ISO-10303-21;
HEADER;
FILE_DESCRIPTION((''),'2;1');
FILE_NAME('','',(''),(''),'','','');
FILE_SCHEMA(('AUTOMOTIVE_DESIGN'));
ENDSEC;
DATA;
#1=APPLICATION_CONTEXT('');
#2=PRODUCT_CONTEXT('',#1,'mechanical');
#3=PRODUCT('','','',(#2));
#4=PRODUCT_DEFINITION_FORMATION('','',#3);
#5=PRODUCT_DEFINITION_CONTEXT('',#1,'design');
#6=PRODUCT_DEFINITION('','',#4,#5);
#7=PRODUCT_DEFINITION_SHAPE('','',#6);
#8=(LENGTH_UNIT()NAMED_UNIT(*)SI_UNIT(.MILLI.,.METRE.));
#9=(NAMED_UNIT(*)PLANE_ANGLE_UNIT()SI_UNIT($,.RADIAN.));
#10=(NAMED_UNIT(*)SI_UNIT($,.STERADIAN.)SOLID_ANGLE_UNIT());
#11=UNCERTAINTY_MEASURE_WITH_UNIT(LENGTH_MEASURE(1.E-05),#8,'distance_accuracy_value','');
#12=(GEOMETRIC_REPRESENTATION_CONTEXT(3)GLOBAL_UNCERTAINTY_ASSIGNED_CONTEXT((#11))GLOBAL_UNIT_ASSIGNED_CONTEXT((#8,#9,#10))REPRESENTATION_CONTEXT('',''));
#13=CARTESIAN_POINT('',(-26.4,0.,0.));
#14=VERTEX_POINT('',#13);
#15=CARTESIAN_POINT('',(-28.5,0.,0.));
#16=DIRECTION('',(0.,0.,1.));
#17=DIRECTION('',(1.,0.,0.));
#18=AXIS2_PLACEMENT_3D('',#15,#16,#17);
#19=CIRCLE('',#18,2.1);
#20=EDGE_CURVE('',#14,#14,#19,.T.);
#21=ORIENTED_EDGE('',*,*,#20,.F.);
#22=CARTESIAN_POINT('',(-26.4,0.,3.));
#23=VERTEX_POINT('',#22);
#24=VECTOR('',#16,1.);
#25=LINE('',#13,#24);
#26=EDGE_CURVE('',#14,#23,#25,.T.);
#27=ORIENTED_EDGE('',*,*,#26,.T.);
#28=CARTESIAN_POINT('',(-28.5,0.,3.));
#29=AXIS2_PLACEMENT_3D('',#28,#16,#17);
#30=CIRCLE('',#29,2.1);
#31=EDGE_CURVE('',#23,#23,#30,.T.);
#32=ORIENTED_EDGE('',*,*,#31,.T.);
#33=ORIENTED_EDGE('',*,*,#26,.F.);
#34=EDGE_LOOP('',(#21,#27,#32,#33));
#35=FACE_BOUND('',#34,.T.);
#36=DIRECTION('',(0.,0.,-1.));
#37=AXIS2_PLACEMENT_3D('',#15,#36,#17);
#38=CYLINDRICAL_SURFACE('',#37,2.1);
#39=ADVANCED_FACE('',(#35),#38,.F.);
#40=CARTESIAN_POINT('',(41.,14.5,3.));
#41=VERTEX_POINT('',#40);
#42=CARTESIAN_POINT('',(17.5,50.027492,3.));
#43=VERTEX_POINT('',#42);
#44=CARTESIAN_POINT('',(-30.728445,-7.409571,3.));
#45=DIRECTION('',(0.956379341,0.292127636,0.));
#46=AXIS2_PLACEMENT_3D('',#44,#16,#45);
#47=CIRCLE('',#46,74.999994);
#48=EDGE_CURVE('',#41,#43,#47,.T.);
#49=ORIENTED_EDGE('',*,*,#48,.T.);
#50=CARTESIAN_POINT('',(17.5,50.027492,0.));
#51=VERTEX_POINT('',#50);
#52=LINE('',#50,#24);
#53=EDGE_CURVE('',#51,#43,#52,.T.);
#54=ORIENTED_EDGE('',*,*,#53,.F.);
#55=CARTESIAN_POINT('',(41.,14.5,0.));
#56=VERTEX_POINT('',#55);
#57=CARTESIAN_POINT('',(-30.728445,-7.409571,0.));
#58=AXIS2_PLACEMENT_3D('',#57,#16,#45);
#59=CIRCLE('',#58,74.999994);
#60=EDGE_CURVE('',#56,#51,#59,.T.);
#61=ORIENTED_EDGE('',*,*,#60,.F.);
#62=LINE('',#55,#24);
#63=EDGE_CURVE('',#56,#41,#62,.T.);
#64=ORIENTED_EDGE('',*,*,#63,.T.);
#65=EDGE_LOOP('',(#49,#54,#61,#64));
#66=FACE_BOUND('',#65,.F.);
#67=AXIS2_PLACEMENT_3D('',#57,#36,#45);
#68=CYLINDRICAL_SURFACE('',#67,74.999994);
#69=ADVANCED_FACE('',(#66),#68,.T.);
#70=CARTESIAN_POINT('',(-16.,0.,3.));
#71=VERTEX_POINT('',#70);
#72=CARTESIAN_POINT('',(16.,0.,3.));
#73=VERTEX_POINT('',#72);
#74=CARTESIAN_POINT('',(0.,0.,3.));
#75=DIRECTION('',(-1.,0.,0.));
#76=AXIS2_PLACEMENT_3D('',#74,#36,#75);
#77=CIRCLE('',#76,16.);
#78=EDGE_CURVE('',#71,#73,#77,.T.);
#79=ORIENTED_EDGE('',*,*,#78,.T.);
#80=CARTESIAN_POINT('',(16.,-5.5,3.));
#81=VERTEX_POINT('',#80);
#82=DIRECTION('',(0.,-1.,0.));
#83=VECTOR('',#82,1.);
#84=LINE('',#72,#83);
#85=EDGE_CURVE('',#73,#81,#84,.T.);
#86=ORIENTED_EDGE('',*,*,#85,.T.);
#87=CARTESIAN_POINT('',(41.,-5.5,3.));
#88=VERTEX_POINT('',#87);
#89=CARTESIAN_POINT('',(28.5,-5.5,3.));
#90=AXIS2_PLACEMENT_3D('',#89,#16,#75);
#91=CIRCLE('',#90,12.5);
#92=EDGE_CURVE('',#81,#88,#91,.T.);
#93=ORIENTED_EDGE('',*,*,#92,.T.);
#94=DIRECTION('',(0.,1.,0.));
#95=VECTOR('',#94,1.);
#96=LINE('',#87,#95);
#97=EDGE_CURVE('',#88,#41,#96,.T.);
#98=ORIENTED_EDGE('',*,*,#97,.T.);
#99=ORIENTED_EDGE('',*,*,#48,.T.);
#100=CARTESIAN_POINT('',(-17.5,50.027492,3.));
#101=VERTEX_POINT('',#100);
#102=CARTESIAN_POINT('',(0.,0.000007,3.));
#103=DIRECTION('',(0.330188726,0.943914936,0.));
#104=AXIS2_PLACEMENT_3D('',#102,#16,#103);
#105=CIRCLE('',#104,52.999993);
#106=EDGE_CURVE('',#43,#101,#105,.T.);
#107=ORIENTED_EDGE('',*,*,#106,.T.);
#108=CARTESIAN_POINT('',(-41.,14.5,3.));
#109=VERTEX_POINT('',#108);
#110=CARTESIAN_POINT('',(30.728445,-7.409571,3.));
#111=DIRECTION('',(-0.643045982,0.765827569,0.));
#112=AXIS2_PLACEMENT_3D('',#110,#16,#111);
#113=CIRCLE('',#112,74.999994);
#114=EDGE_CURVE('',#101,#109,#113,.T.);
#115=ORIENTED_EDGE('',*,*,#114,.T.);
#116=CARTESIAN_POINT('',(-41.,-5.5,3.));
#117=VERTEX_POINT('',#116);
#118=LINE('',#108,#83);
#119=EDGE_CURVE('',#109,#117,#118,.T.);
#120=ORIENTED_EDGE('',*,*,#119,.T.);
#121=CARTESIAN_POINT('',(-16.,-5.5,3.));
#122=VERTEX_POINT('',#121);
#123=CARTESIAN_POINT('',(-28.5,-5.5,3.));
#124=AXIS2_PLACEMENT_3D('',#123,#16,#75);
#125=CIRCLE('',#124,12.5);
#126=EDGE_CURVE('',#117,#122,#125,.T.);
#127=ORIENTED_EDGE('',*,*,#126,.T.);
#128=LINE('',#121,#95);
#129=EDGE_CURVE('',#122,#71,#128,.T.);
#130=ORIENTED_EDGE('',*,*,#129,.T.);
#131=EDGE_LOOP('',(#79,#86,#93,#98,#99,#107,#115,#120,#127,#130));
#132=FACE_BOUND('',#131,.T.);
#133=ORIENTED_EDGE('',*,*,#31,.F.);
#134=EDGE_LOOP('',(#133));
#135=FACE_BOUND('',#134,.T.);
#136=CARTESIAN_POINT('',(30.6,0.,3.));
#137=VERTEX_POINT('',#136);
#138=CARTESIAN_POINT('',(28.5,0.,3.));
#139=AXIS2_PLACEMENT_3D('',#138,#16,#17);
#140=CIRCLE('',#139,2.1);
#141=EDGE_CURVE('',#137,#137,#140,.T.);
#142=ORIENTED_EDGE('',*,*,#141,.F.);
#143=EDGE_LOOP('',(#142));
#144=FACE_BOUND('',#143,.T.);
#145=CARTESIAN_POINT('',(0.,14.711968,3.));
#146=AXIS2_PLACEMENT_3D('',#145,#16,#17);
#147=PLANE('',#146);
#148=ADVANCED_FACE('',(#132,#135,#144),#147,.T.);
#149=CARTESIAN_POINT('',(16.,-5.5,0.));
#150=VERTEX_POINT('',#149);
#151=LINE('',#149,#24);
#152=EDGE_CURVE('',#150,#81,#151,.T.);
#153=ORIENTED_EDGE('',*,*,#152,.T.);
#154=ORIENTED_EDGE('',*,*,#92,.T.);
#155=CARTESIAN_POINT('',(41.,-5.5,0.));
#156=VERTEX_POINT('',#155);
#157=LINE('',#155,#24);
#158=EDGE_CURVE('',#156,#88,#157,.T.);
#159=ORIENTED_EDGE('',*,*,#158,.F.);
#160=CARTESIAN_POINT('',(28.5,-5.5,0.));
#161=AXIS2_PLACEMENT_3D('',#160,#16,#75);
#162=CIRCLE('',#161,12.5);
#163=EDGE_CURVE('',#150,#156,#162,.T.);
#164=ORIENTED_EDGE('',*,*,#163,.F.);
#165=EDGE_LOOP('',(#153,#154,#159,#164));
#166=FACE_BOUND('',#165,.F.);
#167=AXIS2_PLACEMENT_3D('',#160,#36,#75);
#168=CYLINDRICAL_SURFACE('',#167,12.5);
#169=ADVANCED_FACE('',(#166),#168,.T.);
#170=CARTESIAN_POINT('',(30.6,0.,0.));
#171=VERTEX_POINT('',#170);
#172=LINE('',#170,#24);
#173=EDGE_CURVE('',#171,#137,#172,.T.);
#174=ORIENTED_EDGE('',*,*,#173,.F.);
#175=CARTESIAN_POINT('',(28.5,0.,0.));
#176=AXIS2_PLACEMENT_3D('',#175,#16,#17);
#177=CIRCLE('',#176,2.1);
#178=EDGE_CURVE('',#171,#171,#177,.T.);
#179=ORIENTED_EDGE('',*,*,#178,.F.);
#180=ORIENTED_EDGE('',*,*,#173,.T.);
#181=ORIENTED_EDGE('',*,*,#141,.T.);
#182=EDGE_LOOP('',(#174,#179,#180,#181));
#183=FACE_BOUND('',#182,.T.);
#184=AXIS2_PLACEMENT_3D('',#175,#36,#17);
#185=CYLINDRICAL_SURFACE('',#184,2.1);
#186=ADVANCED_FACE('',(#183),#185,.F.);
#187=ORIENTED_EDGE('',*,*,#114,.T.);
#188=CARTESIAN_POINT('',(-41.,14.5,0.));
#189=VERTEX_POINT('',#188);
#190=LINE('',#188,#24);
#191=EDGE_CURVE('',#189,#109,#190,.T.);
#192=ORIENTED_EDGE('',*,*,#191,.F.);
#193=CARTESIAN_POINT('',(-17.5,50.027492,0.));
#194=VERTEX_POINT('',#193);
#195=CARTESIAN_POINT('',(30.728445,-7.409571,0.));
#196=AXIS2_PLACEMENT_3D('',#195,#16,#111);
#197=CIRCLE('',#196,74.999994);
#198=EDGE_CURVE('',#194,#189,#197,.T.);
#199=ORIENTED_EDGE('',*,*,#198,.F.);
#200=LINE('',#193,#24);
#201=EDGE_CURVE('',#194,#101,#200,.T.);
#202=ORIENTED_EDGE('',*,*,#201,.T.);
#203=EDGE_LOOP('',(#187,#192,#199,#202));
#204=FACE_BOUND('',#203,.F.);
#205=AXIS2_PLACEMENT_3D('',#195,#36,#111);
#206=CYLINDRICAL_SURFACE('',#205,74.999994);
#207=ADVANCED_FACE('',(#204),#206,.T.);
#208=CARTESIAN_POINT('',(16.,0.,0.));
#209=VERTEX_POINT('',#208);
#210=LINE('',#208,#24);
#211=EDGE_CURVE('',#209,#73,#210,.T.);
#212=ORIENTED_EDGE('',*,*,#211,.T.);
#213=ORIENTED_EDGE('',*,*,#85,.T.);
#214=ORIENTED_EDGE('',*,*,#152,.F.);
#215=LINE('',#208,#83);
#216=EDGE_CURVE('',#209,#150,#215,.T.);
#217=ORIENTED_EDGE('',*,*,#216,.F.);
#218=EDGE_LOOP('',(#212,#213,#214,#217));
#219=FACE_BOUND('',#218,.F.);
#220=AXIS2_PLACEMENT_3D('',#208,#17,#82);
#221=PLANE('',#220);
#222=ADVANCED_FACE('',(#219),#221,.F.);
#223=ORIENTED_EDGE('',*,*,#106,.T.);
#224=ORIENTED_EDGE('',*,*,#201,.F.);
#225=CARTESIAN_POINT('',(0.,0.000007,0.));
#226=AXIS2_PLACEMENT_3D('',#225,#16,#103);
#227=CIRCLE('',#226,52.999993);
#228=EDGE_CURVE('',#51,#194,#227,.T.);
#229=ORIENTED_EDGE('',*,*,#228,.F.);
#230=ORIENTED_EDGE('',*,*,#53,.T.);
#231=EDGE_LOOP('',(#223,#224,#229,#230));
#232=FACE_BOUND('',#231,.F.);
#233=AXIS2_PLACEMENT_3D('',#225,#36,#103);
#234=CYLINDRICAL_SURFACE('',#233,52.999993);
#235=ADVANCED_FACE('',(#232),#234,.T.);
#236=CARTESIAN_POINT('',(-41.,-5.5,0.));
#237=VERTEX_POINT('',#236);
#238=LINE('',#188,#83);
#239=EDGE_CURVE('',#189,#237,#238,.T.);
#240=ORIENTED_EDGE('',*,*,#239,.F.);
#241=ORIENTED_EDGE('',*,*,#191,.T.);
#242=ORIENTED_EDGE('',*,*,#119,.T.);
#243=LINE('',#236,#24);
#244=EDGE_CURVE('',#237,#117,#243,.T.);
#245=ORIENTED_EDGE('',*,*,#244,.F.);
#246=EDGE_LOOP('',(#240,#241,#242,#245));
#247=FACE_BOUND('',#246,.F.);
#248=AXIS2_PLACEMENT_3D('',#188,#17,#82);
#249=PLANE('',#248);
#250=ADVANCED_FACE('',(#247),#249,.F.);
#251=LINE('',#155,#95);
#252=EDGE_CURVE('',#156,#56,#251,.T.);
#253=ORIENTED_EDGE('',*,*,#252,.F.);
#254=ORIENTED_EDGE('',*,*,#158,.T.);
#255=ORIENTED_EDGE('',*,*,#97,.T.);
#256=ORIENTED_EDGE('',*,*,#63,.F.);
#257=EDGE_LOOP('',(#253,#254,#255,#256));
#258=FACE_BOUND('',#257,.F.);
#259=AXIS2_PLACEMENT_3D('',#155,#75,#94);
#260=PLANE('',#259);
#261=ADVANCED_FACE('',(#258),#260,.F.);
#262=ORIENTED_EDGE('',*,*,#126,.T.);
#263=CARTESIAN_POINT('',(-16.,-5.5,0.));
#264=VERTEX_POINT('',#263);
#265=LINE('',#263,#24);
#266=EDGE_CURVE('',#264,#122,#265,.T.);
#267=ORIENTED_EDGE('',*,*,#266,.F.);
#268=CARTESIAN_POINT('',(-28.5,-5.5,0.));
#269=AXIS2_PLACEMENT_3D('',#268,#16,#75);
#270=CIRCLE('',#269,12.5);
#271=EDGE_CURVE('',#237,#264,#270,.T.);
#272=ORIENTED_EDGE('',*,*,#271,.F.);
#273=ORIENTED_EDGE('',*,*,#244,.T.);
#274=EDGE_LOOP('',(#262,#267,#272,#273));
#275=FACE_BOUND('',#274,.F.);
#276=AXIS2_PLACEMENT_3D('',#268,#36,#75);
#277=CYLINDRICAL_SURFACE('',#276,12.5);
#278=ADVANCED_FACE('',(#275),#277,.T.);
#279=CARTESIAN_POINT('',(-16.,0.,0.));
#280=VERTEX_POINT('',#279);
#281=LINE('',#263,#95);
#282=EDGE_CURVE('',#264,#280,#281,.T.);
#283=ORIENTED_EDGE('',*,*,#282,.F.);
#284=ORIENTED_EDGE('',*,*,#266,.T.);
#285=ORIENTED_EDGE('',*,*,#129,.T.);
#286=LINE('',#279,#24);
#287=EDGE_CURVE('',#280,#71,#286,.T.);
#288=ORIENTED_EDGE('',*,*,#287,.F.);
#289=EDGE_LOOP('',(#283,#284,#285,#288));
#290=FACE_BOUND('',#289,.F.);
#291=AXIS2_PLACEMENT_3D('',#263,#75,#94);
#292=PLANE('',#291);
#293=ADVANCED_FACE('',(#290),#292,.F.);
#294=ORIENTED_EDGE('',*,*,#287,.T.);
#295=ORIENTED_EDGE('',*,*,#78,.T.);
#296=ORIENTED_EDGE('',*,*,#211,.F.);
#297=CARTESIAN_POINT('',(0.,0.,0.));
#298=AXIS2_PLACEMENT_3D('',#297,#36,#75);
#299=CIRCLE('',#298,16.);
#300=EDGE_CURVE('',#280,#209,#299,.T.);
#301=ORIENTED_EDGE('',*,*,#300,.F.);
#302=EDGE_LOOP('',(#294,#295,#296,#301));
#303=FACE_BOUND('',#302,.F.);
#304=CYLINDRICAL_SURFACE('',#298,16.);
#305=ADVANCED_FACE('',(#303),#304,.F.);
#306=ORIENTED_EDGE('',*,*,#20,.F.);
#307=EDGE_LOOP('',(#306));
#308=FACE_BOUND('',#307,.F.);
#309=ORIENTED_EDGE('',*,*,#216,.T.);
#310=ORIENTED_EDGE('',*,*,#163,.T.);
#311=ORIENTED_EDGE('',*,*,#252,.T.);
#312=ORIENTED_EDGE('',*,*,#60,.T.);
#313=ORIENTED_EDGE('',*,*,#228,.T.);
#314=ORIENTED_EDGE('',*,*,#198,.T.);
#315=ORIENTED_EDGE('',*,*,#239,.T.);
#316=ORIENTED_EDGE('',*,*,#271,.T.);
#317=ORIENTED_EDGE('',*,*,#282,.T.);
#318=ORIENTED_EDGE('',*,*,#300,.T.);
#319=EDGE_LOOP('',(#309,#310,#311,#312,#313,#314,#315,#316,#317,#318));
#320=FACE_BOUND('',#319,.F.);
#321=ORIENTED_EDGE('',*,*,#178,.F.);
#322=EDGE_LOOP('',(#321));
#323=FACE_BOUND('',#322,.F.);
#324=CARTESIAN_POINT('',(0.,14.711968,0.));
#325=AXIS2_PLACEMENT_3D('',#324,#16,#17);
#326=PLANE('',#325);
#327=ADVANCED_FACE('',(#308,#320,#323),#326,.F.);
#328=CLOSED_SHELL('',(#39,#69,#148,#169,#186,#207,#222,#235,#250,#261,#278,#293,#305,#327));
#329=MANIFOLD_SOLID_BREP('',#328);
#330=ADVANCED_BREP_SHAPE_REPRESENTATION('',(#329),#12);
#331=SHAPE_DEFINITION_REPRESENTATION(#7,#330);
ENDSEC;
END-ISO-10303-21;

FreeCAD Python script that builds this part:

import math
import FreeCAD as App
import Part
import Sketcher
from FreeCAD import Vector
Q = App.Units.Quantity

doc = App.newDocument("Part")
body = doc.addObject("PartDesign::Body", "Body")

# Sketch on XY plane
sketch1 = body.newObject("Sketcher::SketchObject", "Sketch")
sketch1.AttachmentSupport = (doc.getObject("XY_Plane"), [""])
sketch1.MapMode = "FlatFace"
sketch1.addGeometry(Part.LineSegment(Vector(-41, 14.5, 0), Vector(-41, -5.5, 0)), False)
sketch1.addGeometry(Part.ArcOfCircle(Part.Circle(Vector(-28.5, -5.5, 0), Vector(0, 0, 1), 12.5), math.radians(180), math.radians(360)), False)
sketch1.addGeometry(Part.LineSegment(Vector(-16, -5.5, 0), Vector(-16, 0, 0)), False)
sketch1.addGeometry(Part.ArcOfCircle(Part.Circle(Vector(0, 0, 0), Vector(0, 0, 1), 16), math.radians(0), math.radians(180)), False)
sketch1.addGeometry(Part.LineSegment(Vector(16, 0, 0), Vector(16, -5.5, 0)), False)
sketch1.addGeometry(Part.ArcOfCircle(Part.Circle(Vector(28.5, -5.5, 0), Vector(0, 0, 1), 12.5), math.radians(180), math.radians(360)), False)
sketch1.addGeometry(Part.LineSegment(Vector(41, -5.5, 0), Vector(41, 14.5, 0)), False)
sketch1.addGeometry(Part.ArcOfCircle(Part.Circle(Vector(-30.7, -7.4, 0), Vector(0, 0, 1), 75), math.radians(17), math.radians(50)), False)
sketch1.addGeometry(Part.ArcOfCircle(Part.Circle(Vector(0, 0, 0), Vector(0, 0, 1), 53), math.radians(71), math.radians(109)), False)
sketch1.addGeometry(Part.ArcOfCircle(Part.Circle(Vector(30.7, -7.4, 0), Vector(0, 0, 1), 75), math.radians(130), math.radians(163)), False)
sketch1.addGeometry(Part.Circle(Vector(-28.5, 0, 0), Vector(0, 0, 1), 2.1), False)
sketch1.addGeometry(Part.Circle(Vector(28.5, 0, 0), Vector(0, 0, 1), 2.1), False)
sketch1.addConstraint(Sketcher.Constraint("Tangent", 0, 2, 1, 1))
sketch1.addConstraint(Sketcher.Constraint("Tangent", 1, 2, 2, 1))
sketch1.addConstraint(Sketcher.Constraint("Tangent", 2, 2, 3, 2))
sketch1.addConstraint(Sketcher.Constraint("Tangent", 3, 1, 4, 1))
sketch1.addConstraint(Sketcher.Constraint("Tangent", 4, 2, 5, 1))
sketch1.addConstraint(Sketcher.Constraint("Tangent", 5, 2, 6, 1))
sketch1.addConstraint(Sketcher.Constraint("Coincident", 6, 2, 7, 1))
sketch1.addConstraint(Sketcher.Constraint("Coincident", 7, 2, 8, 1))
sketch1.addConstraint(Sketcher.Constraint("Coincident", 8, 2, 9, 1))
sketch1.addConstraint(Sketcher.Constraint("Coincident", 9, 2, 0, 1))
sketch1.addConstraint(Sketcher.Constraint("Vertical", 0))
sketch1.addConstraint(Sketcher.Constraint("Vertical", 2))
sketch1.addConstraint(Sketcher.Constraint("Vertical", 4))
sketch1.addConstraint(Sketcher.Constraint("Vertical", 6))
sketch1.addConstraint(Sketcher.Constraint("Coincident", 3, 3, -1, 1))
sketch1.addConstraint(Sketcher.Constraint("Coincident", 8, 3, -1, 1))
sketch1.addConstraint(Sketcher.Constraint("Equal", 1, 5))
sketch1.addConstraint(Sketcher.Constraint("Equal", 7, 9))
sketch1.addConstraint(Sketcher.Constraint("Equal", 10, 11))
sketch1.addConstraint(Sketcher.Constraint("Symmetric", 10, 3, 11, 3, -1, 1))
sketch1.addConstraint(Sketcher.Constraint("Symmetric", 7, 3, 9, 3, -2))
sketch1.addConstraint(Sketcher.Constraint("PointOnObject", 10, 3, -1))
sketch1.addConstraint(Sketcher.Constraint("Horizontal", 1, 3, 5, 3))
sketch1.addConstraint(Sketcher.Constraint("Vertical", 1, 3, 10, 3))
sketch1.addConstraint(Sketcher.Constraint("Radius", 3, Q("16 mm")))
sketch1.addConstraint(Sketcher.Constraint("Diameter", 10, Q("4.2 mm")))
sketch1.addConstraint(Sketcher.Constraint("Radius", 1, Q("12.5 mm")))
sketch1.addConstraint(Sketcher.Constraint("DistanceY", 0, 2, 0, 1, Q("20 mm")))
sketch1.addConstraint(Sketcher.Constraint("DistanceY", 2, 1, 2, 2, Q("5.5 mm")))
sketch1.addConstraint(Sketcher.Constraint("DistanceX", 7, 2, 11, 3, Q("11 mm")))
sketch1.addConstraint(Sketcher.Constraint("Radius", 7, Q("74.999994 mm")))
sketch1.addConstraint(Sketcher.Constraint("Radius", 8, Q("52.999993 mm")))
pad1 = body.newObject("PartDesign::Pad", "Pad")
pad1.Profile = sketch1
pad1.Length = 3

doc.recompute()
